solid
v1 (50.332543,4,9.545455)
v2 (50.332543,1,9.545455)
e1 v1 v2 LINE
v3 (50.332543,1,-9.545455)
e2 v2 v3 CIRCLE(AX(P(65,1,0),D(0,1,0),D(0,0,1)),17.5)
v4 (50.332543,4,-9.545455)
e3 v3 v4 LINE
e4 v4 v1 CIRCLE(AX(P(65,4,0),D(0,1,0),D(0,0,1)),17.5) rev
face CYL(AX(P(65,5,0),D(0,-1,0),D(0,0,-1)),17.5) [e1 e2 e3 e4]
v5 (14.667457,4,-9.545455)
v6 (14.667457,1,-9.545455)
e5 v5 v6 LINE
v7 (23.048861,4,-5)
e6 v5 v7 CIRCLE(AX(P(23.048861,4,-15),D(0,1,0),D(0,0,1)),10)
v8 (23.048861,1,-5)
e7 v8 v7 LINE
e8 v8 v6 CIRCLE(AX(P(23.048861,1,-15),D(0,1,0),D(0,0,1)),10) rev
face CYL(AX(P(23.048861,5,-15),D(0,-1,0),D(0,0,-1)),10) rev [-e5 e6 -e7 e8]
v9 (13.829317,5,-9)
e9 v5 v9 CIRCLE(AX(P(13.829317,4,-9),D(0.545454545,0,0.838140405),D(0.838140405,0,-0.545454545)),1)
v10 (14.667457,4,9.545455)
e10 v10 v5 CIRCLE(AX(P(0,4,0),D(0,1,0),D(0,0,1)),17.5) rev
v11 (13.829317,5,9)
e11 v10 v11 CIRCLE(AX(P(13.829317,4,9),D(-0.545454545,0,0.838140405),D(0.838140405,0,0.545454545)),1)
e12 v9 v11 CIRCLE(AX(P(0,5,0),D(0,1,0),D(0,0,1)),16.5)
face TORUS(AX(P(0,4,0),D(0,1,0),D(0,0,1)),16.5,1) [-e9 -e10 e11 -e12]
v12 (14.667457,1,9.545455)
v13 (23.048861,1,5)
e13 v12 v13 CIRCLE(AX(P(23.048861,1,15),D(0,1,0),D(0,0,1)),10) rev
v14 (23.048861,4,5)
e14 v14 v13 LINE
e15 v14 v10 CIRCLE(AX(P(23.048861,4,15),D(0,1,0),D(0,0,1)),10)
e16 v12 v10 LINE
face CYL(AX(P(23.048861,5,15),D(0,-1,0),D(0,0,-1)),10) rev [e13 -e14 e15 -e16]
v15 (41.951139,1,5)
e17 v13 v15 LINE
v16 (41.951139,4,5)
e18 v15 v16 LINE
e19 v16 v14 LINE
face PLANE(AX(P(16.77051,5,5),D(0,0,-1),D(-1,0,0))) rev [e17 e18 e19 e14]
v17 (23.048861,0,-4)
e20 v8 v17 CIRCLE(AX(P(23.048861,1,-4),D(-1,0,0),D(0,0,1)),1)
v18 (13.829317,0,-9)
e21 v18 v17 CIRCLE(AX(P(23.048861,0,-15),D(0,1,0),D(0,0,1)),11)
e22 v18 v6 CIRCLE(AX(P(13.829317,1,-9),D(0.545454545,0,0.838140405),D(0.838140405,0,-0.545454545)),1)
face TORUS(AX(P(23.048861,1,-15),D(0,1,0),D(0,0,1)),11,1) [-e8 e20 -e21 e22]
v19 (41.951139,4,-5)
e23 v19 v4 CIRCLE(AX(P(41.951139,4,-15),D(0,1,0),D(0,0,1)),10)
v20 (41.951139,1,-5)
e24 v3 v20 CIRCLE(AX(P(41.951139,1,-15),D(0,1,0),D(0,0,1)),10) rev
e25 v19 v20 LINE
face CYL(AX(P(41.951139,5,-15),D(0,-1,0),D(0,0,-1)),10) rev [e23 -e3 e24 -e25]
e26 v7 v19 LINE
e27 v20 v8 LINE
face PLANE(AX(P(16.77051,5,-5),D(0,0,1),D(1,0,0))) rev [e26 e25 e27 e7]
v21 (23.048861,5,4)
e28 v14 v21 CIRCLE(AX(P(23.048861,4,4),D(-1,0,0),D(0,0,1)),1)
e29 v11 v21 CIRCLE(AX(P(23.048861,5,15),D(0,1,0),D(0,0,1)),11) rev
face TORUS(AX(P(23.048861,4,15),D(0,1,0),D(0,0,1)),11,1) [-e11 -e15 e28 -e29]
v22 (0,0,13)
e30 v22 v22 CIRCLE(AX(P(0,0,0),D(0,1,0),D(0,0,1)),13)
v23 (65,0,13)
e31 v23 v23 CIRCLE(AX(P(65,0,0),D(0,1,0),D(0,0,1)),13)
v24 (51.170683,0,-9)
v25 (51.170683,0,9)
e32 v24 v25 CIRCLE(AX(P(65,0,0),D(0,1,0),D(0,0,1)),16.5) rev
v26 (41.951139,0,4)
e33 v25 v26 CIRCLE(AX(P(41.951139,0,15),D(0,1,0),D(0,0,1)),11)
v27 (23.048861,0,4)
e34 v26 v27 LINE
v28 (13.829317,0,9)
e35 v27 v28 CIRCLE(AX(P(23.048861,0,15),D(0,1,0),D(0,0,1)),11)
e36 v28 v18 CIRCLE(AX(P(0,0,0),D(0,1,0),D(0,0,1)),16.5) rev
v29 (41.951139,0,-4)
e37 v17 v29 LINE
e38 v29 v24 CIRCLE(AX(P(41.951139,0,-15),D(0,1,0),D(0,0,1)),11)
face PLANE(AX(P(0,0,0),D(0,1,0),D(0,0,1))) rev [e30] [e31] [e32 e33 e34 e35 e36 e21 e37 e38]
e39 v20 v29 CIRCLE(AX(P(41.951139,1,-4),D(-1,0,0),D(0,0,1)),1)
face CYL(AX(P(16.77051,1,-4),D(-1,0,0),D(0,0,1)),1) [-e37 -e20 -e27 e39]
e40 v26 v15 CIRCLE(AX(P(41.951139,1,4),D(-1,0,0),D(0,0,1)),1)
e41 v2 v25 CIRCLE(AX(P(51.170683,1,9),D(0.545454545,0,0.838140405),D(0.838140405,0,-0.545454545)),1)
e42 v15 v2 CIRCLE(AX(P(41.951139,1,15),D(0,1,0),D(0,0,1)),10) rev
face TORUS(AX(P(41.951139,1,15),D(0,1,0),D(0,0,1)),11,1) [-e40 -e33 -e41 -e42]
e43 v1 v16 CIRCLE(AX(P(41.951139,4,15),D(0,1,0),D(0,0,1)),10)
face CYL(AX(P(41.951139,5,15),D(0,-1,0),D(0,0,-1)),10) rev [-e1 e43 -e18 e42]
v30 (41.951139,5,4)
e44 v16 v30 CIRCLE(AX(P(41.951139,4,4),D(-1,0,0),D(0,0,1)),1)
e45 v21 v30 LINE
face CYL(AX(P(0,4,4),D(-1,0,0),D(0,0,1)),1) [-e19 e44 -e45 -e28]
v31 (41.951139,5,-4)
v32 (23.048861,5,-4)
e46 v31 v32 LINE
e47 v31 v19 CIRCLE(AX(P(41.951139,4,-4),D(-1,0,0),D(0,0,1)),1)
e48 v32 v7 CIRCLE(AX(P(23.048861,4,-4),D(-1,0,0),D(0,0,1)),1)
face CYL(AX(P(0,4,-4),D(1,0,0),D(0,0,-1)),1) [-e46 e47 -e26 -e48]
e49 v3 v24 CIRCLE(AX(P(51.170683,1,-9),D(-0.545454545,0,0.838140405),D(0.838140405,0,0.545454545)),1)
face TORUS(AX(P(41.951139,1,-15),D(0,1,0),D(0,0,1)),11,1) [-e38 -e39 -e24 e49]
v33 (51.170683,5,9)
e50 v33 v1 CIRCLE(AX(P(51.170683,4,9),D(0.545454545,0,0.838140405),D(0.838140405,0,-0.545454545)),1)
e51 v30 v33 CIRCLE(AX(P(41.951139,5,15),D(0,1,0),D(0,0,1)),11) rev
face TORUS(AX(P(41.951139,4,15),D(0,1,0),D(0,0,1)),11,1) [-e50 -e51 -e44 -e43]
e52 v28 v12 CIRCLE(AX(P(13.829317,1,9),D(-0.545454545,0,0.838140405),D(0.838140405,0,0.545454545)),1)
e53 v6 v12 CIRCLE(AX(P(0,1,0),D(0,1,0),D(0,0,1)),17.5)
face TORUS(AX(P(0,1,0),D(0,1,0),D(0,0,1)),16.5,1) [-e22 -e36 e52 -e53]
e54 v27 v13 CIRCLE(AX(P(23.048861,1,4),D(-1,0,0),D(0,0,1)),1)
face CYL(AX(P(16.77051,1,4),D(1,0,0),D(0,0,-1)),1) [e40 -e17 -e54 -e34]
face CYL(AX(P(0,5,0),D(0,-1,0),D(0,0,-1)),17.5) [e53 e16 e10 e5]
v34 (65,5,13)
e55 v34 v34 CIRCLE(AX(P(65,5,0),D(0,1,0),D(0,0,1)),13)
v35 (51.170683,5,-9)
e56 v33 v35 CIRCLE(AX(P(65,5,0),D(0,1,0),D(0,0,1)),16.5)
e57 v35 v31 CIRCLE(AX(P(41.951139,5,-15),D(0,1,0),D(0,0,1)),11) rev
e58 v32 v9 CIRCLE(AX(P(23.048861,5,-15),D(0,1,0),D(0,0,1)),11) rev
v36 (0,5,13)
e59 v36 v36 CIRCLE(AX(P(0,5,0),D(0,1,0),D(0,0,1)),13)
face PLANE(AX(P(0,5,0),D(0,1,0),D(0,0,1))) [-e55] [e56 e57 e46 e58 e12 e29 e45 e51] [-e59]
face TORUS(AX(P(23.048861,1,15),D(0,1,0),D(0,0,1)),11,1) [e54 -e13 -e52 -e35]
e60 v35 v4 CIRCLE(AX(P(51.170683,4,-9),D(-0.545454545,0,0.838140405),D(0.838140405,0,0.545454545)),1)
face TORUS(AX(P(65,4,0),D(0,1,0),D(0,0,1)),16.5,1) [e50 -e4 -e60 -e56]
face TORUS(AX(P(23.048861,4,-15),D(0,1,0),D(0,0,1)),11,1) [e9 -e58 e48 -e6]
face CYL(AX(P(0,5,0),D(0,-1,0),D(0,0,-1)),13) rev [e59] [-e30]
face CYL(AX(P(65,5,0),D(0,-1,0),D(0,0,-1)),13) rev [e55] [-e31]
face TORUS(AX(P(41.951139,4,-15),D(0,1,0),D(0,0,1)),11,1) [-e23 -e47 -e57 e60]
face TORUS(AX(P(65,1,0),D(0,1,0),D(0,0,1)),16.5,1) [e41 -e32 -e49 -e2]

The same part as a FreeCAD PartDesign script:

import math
import FreeCAD as App
import Part
import Sketcher

V = App.Vector


def edges_at(feature, points):
    """Names of the edges that pass closest to the given points."""
    edges = feature.Shape.Edges
    near = lambda p: min(range(len(edges)), key=lambda i: edges[i].distToShape(Part.Vertex(*p))[0])
    return sorted({f"Edge{near(p) + 1}" for p in points})

doc = App.newDocument("Part")
body = doc.addObject("PartDesign::Body", "Body")

# Sketch on XZ plane
sketch1 = body.newObject("Sketcher::SketchObject", "Sketch")
sketch1.AttachmentSupport = (doc.getObject("XZ_Plane"), [""])
sketch1.MapMode = "FlatFace"
sketch1.addGeometry([
    Part.LineSegment(V(48, -5, 0), V(17, -5, 0)),  # 0
    Part.ArcOfCircle(Part.Circle(V(0, 0, 0), V(0, 0, 1), 18), math.radians(17), math.radians(343)),  # 1
    Part.LineSegment(V(17, 5, 0), V(48, 5, 0)),  # 2
    Part.ArcOfCircle(Part.Circle(V(65, 0, 0), V(0, 0, 1), 18), math.radians(-163), math.radians(163)),  # 3
    Part.Circle(V(65, 0, 0), V(0, 0, 1), 13),  # 4
    Part.Circle(V(0, 0, 0), V(0, 0, 1), 13),  # 5
], False)
sketch1.addConstraint([
    Sketcher.Constraint("Coincident", 0, 2, 1, 2),
    Sketcher.Constraint("Coincident", 1, 1, 2, 1),
    Sketcher.Constraint("Coincident", 2, 2, 3, 2),
    Sketcher.Constraint("Coincident", 3, 1, 0, 1),
    Sketcher.Constraint("Horizontal", 0),
    Sketcher.Constraint("Horizontal", 2),
    Sketcher.Constraint("Coincident", 1, 3, -1, 1),
    Sketcher.Constraint("Coincident", 5, 3, -1, 1),
    Sketcher.Constraint("Coincident", 4, 3, 3, 3),
    Sketcher.Constraint("Equal", 1, 3),
    Sketcher.Constraint("Equal", 4, 5),
    Sketcher.Constraint("Symmetric", 2, 2, 3, 1, -1),
    Sketcher.Constraint("Diameter", 4, 26.0),
    Sketcher.Constraint("Radius", 1, 17.5),
    Sketcher.Constraint("DistanceX", -1, 1, 3, 3, 65.0),
    Sketcher.Constraint("DistanceY", 0, 2, -1, 1, 5.0),
])
pad1 = body.newObject("PartDesign::Pad", "Pad")
pad1.Profile = sketch1
pad1.Length = 5
pad1.Reversed = True
doc.recompute()

fillet = body.newObject("PartDesign::Fillet", "Fillet")
fillet.Base = (pad1, edges_at(pad1, [
    (16.771, 2.5, -5),
    (48.229, 2.5, -5),
    (48.229, 2.5, 5),
    (16.771, 2.5, 5),
]))
fillet.Radius = 10
doc.recompute()

fillet2 = body.newObject("PartDesign::Fillet", "Fillet001")
fillet2.Base = (fillet, edges_at(fillet, [
    (82.5, 0, 0),
    (82.5, 5, 0),
    (32.5, 0, 5),
    (32.5, 5, 5),
    (-17.5, 0, 0),
    (-17.5, 5, 0),
    (32.5, 0, -5),
    (32.5, 5, -5),
    (46.718, 0, 6.21),
    (46.718, 5, 6.21),
    (18.282, 0, 6.21),
    (18.282, 5, 6.21),
    (46.718, 0, -6.21),
    (46.718, 5, -6.21),
    (18.282, 0, -6.21),
    (18.282, 5, -6.21),
]))
fillet2.Radius = 1

doc.recompute()
